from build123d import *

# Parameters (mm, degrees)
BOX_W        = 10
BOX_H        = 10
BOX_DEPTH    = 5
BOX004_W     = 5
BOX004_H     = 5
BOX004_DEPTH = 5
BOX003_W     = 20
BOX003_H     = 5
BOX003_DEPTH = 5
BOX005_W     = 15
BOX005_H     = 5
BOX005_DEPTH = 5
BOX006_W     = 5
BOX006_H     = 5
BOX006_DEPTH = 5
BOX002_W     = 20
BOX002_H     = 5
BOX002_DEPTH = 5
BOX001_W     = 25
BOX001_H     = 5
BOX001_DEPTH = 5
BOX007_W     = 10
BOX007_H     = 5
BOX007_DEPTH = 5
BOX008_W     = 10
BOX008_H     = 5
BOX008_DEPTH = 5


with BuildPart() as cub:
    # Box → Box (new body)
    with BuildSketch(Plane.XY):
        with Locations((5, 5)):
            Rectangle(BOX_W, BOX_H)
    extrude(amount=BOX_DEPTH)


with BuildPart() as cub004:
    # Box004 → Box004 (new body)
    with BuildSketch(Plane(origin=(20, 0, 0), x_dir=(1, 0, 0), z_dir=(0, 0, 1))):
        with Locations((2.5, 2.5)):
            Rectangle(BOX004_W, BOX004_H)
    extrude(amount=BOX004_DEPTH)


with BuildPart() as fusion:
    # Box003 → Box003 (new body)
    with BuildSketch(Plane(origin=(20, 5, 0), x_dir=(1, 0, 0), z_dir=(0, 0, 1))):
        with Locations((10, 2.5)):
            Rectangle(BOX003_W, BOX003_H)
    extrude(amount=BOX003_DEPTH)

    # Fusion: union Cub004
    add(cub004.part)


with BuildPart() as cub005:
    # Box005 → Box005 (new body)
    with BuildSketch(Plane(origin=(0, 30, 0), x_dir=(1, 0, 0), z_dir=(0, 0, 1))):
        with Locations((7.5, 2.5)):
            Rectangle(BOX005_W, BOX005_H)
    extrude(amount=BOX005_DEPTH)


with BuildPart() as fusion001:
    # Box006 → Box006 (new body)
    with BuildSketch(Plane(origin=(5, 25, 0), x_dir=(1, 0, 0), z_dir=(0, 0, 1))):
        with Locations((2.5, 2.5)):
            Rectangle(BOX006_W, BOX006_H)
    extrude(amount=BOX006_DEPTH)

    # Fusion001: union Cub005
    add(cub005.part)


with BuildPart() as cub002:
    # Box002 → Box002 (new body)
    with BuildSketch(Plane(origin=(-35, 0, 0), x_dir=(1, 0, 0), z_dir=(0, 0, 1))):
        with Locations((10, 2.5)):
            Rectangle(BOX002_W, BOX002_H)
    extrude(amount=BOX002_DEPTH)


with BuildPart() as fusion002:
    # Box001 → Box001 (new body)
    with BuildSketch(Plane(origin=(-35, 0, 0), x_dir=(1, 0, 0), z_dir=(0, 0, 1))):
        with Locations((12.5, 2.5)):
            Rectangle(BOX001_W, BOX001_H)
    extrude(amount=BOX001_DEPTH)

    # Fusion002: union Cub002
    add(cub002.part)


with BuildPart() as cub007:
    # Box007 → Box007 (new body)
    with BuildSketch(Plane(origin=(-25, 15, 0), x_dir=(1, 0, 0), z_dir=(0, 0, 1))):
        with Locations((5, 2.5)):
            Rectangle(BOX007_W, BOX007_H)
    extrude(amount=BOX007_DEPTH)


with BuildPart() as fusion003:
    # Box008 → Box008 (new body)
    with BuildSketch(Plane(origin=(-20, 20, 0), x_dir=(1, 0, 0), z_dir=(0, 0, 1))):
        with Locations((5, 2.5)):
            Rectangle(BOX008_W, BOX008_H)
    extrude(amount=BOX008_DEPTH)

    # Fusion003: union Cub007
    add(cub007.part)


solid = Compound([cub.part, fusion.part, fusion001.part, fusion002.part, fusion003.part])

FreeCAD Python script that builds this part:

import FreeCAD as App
import Part
import Sketcher
from FreeCAD import Vector


def add_polygon(sketch, points):
    """Adds a closed chain of lines whose ends are joined by coincident constraints."""
    first, n = sketch.GeometryCount, len(points)
    for a, b in zip(points, points[1:] + points[:1]):
        sketch.addGeometry(Part.LineSegment(App.Vector(*a, 0), App.Vector(*b, 0)), False)
    for i in range(n):
        sketch.addConstraint(Sketcher.Constraint("Coincident", first + i, 2, first + (i + 1) % n, 1))

doc = App.newDocument("Part")
body = doc.addObject("PartDesign::Body", "Body")

# Sketch on XY plane
sketch1 = doc.addObject("Sketcher::SketchObject", "Sketch")
body.addObject(sketch1)
sketch1.AttachmentSupport = (doc.XY_Plane, [""])
sketch1.MapMode = "FlatFace"
add_polygon(sketch1, [(0, 10), (0, 0), (10, 0), (10, 10)])  # lines 0-3
sketch1.addConstraint([
    Sketcher.Constraint("Vertical", 0),
    Sketcher.Constraint("Horizontal", 1),
    Sketcher.Constraint("Vertical", 2),
    Sketcher.Constraint("Horizontal", 3),
    Sketcher.Constraint("Coincident", 0, 2, -1, 1),
    Sketcher.Constraint("Equal", 3, 0),
    Sketcher.Constraint("DistanceX", 1, 1, 1, 2, 10.0),
])
pad1 = doc.addObject("PartDesign::Pad", "Pad")
body.addObject(pad1)
pad1.Profile = sketch1
pad1.Length = 5
body2 = doc.addObject("PartDesign::Body", "Body001")

# Sketch on XY plane
sketch2 = doc.addObject("Sketcher::SketchObject", "Sketch001")
body2.addObject(sketch2)
sketch2.AttachmentSupport = (doc.getObject("XY_Plane001"), [""])
sketch2.MapMode = "FlatFace"
add_polygon(sketch2, [(20, 5), (20, 0), (25, 0), (25, 5)])  # lines 0-3
sketch2.addConstraint([
    Sketcher.Constraint("Vertical", 0),
    Sketcher.Constraint("Horizontal", 1),
    Sketcher.Constraint("Vertical", 2),
    Sketcher.Constraint("Horizontal", 3),
    Sketcher.Constraint("PointOnObject", 0, 2, -1),
    Sketcher.Constraint("Equal", 3, 0),
    Sketcher.Constraint("DistanceX", 1, 1, 1, 2, 5.0),
    Sketcher.Constraint("DistanceX", -1, 1, 0, 2, 20.0),
])
pad2 = doc.addObject("PartDesign::Pad", "Pad001")
body2.addObject(pad2)
pad2.Profile = sketch2
pad2.Length = 5
body3 = doc.addObject("PartDesign::Body", "Body002")

# Sketch on XY plane
sketch3 = doc.addObject("Sketcher::SketchObject", "Sketch002")
body3.addObject(sketch3)
sketch3.AttachmentSupport = (doc.getObject("XY_Plane002"), [""])
sketch3.MapMode = "FlatFace"
add_polygon(sketch3, [(20, 10), (20, 5), (40, 5), (40, 10)])  # lines 0-3
sketch3.addConstraint([
    Sketcher.Constraint("Vertical", 0),
    Sketcher.Constraint("Horizontal", 1),
    Sketcher.Constraint("Vertical", 2),
    Sketcher.Constraint("Horizontal", 3),
    Sketcher.Constraint("DistanceX", 1, 1, 1, 2, 20.0),
    Sketcher.Constraint("DistanceY", 0, 2, 0, 1, 5.0),
    Sketcher.Constraint("DistanceX", -1, 1, 0, 2, 20.0),
    Sketcher.Constraint("DistanceY", -1, 1, 0, 2, 5.0),
])
pad3 = doc.addObject("PartDesign::Pad", "Pad002")
body3.addObject(pad3)
pad3.Profile = sketch3
pad3.Length = 5
doc.recompute()

boolean = doc.addObject("PartDesign::Boolean", "Boolean")
body3.addObject(boolean)
boolean.Type = "Fuse"
boolean.addObjects([body2])
body4 = doc.addObject("PartDesign::Body", "Body003")

# Sketch on XY plane
sketch4 = doc.addObject("Sketcher::SketchObject", "Sketch003")
body4.addObject(sketch4)
sketch4.AttachmentSupport = (doc.getObject("XY_Plane003"), [""])
sketch4.MapMode = "FlatFace"
add_polygon(sketch4, [(0, 35), (0, 30), (15, 30), (15, 35)])  # lines 0-3
sketch4.addConstraint([
    Sketcher.Constraint("Vertical", 0),
    Sketcher.Constraint("Horizontal", 1),
    Sketcher.Constraint("Vertical", 2),
    Sketcher.Constraint("Horizontal", 3),
    Sketcher.Constraint("PointOnObject", 0, 2, -2),
    Sketcher.Constraint("DistanceX", 1, 1, 1, 2, 15.0),
    Sketcher.Constraint("DistanceY", 0, 2, 0, 1, 5.0),
    Sketcher.Constraint("DistanceY", -1, 1, 0, 2, 30.0),
])
pad4 = doc.addObject("PartDesign::Pad", "Pad003")
body4.addObject(pad4)
pad4.Profile = sketch4
pad4.Length = 5
body5 = doc.addObject("PartDesign::Body", "Body004")

# Sketch on XY plane
sketch5 = doc.addObject("Sketcher::SketchObject", "Sketch004")
body5.addObject(sketch5)
sketch5.AttachmentSupport = (doc.getObject("XY_Plane004"), [""])
sketch5.MapMode = "FlatFace"
add_polygon(sketch5, [(5, 30), (5, 25), (10, 25), (10, 30)])  # lines 0-3
sketch5.addConstraint([
    Sketcher.Constraint("Vertical", 0),
    Sketcher.Constraint("Horizontal", 1),
    Sketcher.Constraint("Vertical", 2),
    Sketcher.Constraint("Horizontal", 3),
    Sketcher.Constraint("Equal", 3, 0),
    Sketcher.Constraint("DistanceX", 1, 1, 1, 2, 5.0),
    Sketcher.Constraint("DistanceX", -1, 1, 0, 2, 5.0),
    Sketcher.Constraint("DistanceY", -1, 1, 0, 2, 25.0),
])
pad5 = doc.addObject("PartDesign::Pad", "Pad004")
body5.addObject(pad5)
pad5.Profile = sketch5
pad5.Length = 5
doc.recompute()

boolean2 = doc.addObject("PartDesign::Boolean", "Boolean001")
body5.addObject(boolean2)
boolean2.Type = "Fuse"
boolean2.addObjects([body4])
body6 = doc.addObject("PartDesign::Body", "Body005")

# Sketch on XY plane
sketch6 = doc.addObject("Sketcher::SketchObject", "Sketch005")
body6.addObject(sketch6)
sketch6.AttachmentSupport = (doc.getObject("XY_Plane005"), [""])
sketch6.MapMode = "FlatFace"
add_polygon(sketch6, [(-35, 5), (-35, 0), (-15, 0), (-15, 5)])  # lines 0-3
sketch6.addConstraint([
    Sketcher.Constraint("Vertical", 0),
    Sketcher.Constraint("Horizontal", 1),
    Sketcher.Constraint("Vertical", 2),
    Sketcher.Constraint("Horizontal", 3),
    Sketcher.Constraint("PointOnObject", 0, 2, -1),
    Sketcher.Constraint("DistanceX", 1, 1, 1, 2, 20.0),
    Sketcher.Constraint("DistanceY", 0, 2, 0, 1, 5.0),
    Sketcher.Constraint("DistanceX", 0, 2, -1, 1, 35.0),
])
pad6 = doc.addObject("PartDesign::Pad", "Pad005")
body6.addObject(pad6)
pad6.Profile = sketch6
pad6.Length = 5
body7 = doc.addObject("PartDesign::Body", "Body006")

# Sketch on XY plane
sketch7 = doc.addObject("Sketcher::SketchObject", "Sketch006")
body7.addObject(sketch7)
sketch7.AttachmentSupport = (doc.getObject("XY_Plane006"), [""])
sketch7.MapMode = "FlatFace"
add_polygon(sketch7, [(-35, 5), (-35, 0), (-10, 0), (-10, 5)])  # lines 0-3
sketch7.addConstraint([
    Sketcher.Constraint("Vertical", 0),
    Sketcher.Constraint("Horizontal", 1),
    Sketcher.Constraint("Vertical", 2),
    Sketcher.Constraint("Horizontal", 3),
    Sketcher.Constraint("PointOnObject", 0, 2, -1),
    Sketcher.Constraint("DistanceX", 1, 1, 1, 2, 25.0),
    Sketcher.Constraint("DistanceY", 0, 2, 0, 1, 5.0),
    Sketcher.Constraint("DistanceX", 0, 2, -1, 1, 35.0),
])
pad7 = doc.addObject("PartDesign::Pad", "Pad006")
body7.addObject(pad7)
pad7.Profile = sketch7
pad7.Length = 5
doc.recompute()

boolean3 = doc.addObject("PartDesign::Boolean", "Boolean002")
body7.addObject(boolean3)
boolean3.Type = "Fuse"
boolean3.addObjects([body6])
body8 = doc.addObject("PartDesign::Body", "Body007")

# Sketch on XY plane
sketch8 = doc.addObject("Sketcher::SketchObject", "Sketch007")
body8.addObject(sketch8)
sketch8.AttachmentSupport = (doc.getObject("XY_Plane007"), [""])
sketch8.MapMode = "FlatFace"
add_polygon(sketch8, [(-25, 20), (-25, 15), (-15, 15), (-15, 20)])  # lines 0-3
sketch8.addConstraint([
    Sketcher.Constraint("Vertical", 0),
    Sketcher.Constraint("Horizontal", 1),
    Sketcher.Constraint("Vertical", 2),
    Sketcher.Constraint("Horizontal", 3),
    Sketcher.Constraint("DistanceX", 1, 1, 1, 2, 10.0),
    Sketcher.Constraint("DistanceY", 0, 2, 0, 1, 5.0),
    Sketcher.Constraint("DistanceX", 0, 2, -1, 1, 25.0),
    Sketcher.Constraint("DistanceY", -1, 1, 0, 2, 15.0),
])
pad8 = doc.addObject("PartDesign::Pad", "Pad007")
body8.addObject(pad8)
pad8.Profile = sketch8
pad8.Length = 5
body9 = doc.addObject("PartDesign::Body", "Body008")

# Sketch on XY plane
sketch9 = doc.addObject("Sketcher::SketchObject", "Sketch008")
body9.addObject(sketch9)
sketch9.AttachmentSupport = (doc.getObject("XY_Plane008"), [""])
sketch9.MapMode = "FlatFace"
add_polygon(sketch9, [(-20, 25), (-20, 20), (-10, 20), (-10, 25)])  # lines 0-3
sketch9.addConstraint([
    Sketcher.Constraint("Vertical", 0),
    Sketcher.Constraint("Horizontal", 1),
    Sketcher.Constraint("Vertical", 2),
    Sketcher.Constraint("Horizontal", 3),
    Sketcher.Constraint("DistanceX", 1, 1, 1, 2, 10.0),
    Sketcher.Constraint("DistanceY", 0, 2, 0, 1, 5.0),
    Sketcher.Constraint("DistanceX", 0, 2, -1, 1, 20.0),
    Sketcher.Constraint("DistanceY", -1, 1, 0, 2, 20.0),
])
pad9 = doc.addObject("PartDesign::Pad", "Pad008")
body9.addObject(pad9)
pad9.Profile = sketch9
pad9.Length = 5
doc.recompute()

boolean4 = doc.addObject("PartDesign::Boolean", "Boolean003")
body9.addObject(boolean4)
boolean4.Type = "Fuse"
boolean4.addObjects([body8])

doc.recompute()
